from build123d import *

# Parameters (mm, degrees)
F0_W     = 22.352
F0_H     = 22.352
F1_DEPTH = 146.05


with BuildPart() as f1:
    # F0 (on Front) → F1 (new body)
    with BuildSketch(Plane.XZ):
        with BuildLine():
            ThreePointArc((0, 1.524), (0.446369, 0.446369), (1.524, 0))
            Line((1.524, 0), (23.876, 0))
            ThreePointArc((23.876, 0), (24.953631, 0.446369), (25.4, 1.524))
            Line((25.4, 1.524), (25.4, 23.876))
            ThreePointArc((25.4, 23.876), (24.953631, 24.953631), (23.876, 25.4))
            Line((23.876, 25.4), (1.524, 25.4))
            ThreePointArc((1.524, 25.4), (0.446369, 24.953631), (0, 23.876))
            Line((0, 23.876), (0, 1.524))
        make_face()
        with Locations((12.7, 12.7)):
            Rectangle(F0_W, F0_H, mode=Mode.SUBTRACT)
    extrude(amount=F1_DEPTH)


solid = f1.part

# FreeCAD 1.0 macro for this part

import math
import FreeCAD as App
import Part
import Sketcher

V = App.Vector
Q = App.Units.Quantity


def add_polygon(sketch, points):
    """Adds a closed chain of lines whose ends are joined by coincident constraints."""
    first, n = sketch.GeometryCount, len(points)
    for a, b in zip(points, points[1:] + points[:1]):
        sketch.addGeometry(Part.LineSegment(App.Vector(*a, 0), App.Vector(*b, 0)), False)
    for i in range(n):
        sketch.addConstraint(Sketcher.Constraint("Coincident", first + i, 2, first + (i + 1) % n, 1))

doc = App.newDocument("Part")
body = doc.addObject("PartDesign::Body", "Body")

sketch1 = body.newObject("Sketcher::SketchObject", "Sketch")
sketch1.AttachmentSupport = (doc.getObject("XZ_Plane"), [""])
sketch1.MapMode = "FlatFace"
sketch1.addGeometry(Part.ArcOfCircle(Part.Circle(V(1.523999, 1.523999, 0), V(0, 0, 1), 1.523999), math.radians(179.999966), math.radians(270.000034)), False)
sketch1.addGeometry(Part.LineSegment(V(1.524, 0, 0), V(23.876, 0, 0)), False)
sketch1.addGeometry(Part.ArcOfCircle(Part.Circle(V(23.876001, 1.523999, 0), V(0, 0, 1), 1.523999), math.radians(-90.000034), math.radians(0.000034)), False)
sketch1.addGeometry(Part.LineSegment(V(25.4, 1.524, 0), V(25.4, 23.876, 0)), False)
sketch1.addGeometry(Part.ArcOfCircle(Part.Circle(V(23.876001, 23.876001, 0), V(0, 0, 1), 1.523999), math.radians(-0.000034), math.radians(90.000034)), False)
sketch1.addGeometry(Part.LineSegment(V(23.876, 25.4, 0), V(1.524, 25.4, 0)), False)
sketch1.addGeometry(Part.ArcOfCircle(Part.Circle(V(1.523999, 23.876001, 0), V(0, 0, 1), 1.523999), math.radians(89.999966), math.radians(180.000034)), False)
sketch1.addGeometry(Part.LineSegment(V(0, 23.876, 0), V(0, 1.524, 0)), False)
add_polygon(sketch1, [(23.876, 1.524), (1.524, 1.524), (1.524, 23.876), (23.876, 23.876)])
sketch1.addConstraint(Sketcher.Constraint("Tangent", 0, 2, 1, 1))
sketch1.addConstraint(Sketcher.Constraint("Tangent", 1, 2, 2, 1))
sketch1.addConstraint(Sketcher.Constraint("Tangent", 2, 2, 3, 1))
sketch1.addConstraint(Sketcher.Constraint("Tangent", 3, 2, 4, 1))
sketch1.addConstraint(Sketcher.Constraint("Tangent", 4, 2, 5, 1))
sketch1.addConstraint(Sketcher.Constraint("Tangent", 5, 2, 6, 1))
sketch1.addConstraint(Sketcher.Constraint("Tangent", 6, 2, 7, 1))
sketch1.addConstraint(Sketcher.Constraint("Tangent", 7, 2, 0, 1))
sketch1.addConstraint(Sketcher.Constraint("Horizontal", 1))
sketch1.addConstraint(Sketcher.Constraint("Vertical", 3))
sketch1.addConstraint(Sketcher.Constraint("Horizontal", 5))
sketch1.addConstraint(Sketcher.Constraint("Vertical", 7))
sketch1.addConstraint(Sketcher.Constraint("Horizontal", 8))
sketch1.addConstraint(Sketcher.Constraint("Vertical", 9))
sketch1.addConstraint(Sketcher.Constraint("Horizontal", 10))
sketch1.addConstraint(Sketcher.Constraint("Vertical", 11))
sketch1.addConstraint(Sketcher.Constraint("Coincident", 8, 2, 0, 3))
sketch1.addConstraint(Sketcher.Constraint("Coincident", 9, 2, 6, 3))
sketch1.addConstraint(Sketcher.Constraint("Coincident", 10, 2, 4, 3))
sketch1.addConstraint(Sketcher.Constraint("Equal", 0, 2))
sketch1.addConstraint(Sketcher.Constraint("PointOnObject", 0, 2, -1))
sketch1.addConstraint(Sketcher.Constraint("PointOnObject", 6, 2, -2))
sketch1.addConstraint(Sketcher.Constraint("Equal", 10, 3))
sketch1.addConstraint(Sketcher.Constraint("Radius", 0, Q("0.06 in")))
sketch1.addConstraint(Sketcher.Constraint("DistanceX", -1, 1, 2, 2, Q("1 in")))
pad1 = body.newObject("PartDesign::Pad", "Pad")
pad1.Profile = sketch1
pad1.Length = Q("5.75 in")

doc.recompute()
